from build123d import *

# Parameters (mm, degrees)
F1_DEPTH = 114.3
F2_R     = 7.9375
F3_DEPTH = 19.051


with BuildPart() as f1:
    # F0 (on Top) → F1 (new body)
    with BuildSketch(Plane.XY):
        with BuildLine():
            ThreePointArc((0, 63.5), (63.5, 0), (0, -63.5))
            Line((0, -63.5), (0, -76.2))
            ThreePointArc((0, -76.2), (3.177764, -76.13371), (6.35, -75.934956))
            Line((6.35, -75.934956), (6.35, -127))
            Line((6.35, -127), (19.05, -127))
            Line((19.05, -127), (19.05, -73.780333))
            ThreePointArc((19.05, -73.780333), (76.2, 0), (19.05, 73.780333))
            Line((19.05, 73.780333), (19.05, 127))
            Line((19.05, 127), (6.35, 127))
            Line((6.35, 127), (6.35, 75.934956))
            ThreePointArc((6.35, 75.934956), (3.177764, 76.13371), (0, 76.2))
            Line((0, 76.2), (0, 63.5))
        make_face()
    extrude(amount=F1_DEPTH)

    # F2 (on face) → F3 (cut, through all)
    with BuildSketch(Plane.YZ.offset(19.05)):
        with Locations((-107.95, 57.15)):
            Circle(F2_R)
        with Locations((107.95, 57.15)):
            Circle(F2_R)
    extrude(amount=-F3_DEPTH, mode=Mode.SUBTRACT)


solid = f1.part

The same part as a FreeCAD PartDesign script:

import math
import FreeCAD as App
import Part
import Sketcher
from FreeCAD import Vector
Q = App.Units.Quantity

doc = App.newDocument("Part")
body = doc.addObject("PartDesign::Body", "Body")

sketch1 = body.newObject("Sketcher::SketchObject", "Sketch")
sketch1.AttachmentSupport = (doc.getObject("XY_Plane"), [""])
sketch1.MapMode = "FlatFace"
sketch1.addGeometry(Part.ArcOfCircle(Part.Circle(Vector(0, 0, 0), Vector(0, 0, 1), 64), math.radians(-90), math.radians(90)), False)
sketch1.addGeometry(Part.LineSegment(Vector(0, -64, 0), Vector(0, -76, 0)), False)
sketch1.addGeometry(Part.ArcOfCircle(Part.Circle(Vector(0, 0, 0), Vector(0, 0, 1), 76), math.radians(-90), math.radians(-85.22)), False)
sketch1.addGeometry(Part.LineSegment(Vector(6, -76, 0), Vector(6, -127, 0)), False)
sketch1.addGeometry(Part.LineSegment(Vector(6, -127, 0), Vector(19, -127, 0)), False)
sketch1.addGeometry(Part.LineSegment(Vector(19, -127, 0), Vector(19, -74, 0)), False)
sketch1.addGeometry(Part.ArcOfCircle(Part.Circle(Vector(0, 0, 0), Vector(0, 0, 1), 76), math.radians(-76), math.radians(76)), False)
sketch1.addGeometry(Part.LineSegment(Vector(19, 74, 0), Vector(19, 127, 0)), False)
sketch1.addGeometry(Part.LineSegment(Vector(19, 127, 0), Vector(6, 127, 0)), False)
sketch1.addGeometry(Part.LineSegment(Vector(6, 127, 0), Vector(6, 76, 0)), False)
sketch1.addGeometry(Part.ArcOfCircle(Part.Circle(Vector(0, 0, 0), Vector(0, 0, 1), 76), math.radians(85.22), math.radians(90)), False)
sketch1.addGeometry(Part.LineSegment(Vector(0, 76, 0), Vector(0, 64, 0)), False)
sketch1.addConstraint(Sketcher.Constraint("Coincident", 0, 1, 1, 1))
sketch1.addConstraint(Sketcher.Constraint("Coincident", 1, 2, 2, 1))
sketch1.addConstraint(Sketcher.Constraint("Coincident", 2, 2, 3, 1))
sketch1.addConstraint(Sketcher.Constraint("Coincident", 3, 2, 4, 1))
sketch1.addConstraint(Sketcher.Constraint("Coincident", 4, 2, 5, 1))
sketch1.addConstraint(Sketcher.Constraint("Coincident", 5, 2, 6, 1))
sketch1.addConstraint(Sketcher.Constraint("Coincident", 6, 2, 7, 1))
sketch1.addConstraint(Sketcher.Constraint("Coincident", 7, 2, 8, 1))
sketch1.addConstraint(Sketcher.Constraint("Coincident", 8, 2, 9, 1))
sketch1.addConstraint(Sketcher.Constraint("Coincident", 9, 2, 10, 1))
sketch1.addConstraint(Sketcher.Constraint("Coincident", 10, 2, 11, 1))
sketch1.addConstraint(Sketcher.Constraint("Coincident", 11, 2, 0, 2))
sketch1.addConstraint(Sketcher.Constraint("Vertical", 1))
sketch1.addConstraint(Sketcher.Constraint("Vertical", 3))
sketch1.addConstraint(Sketcher.Constraint("Horizontal", 4))
sketch1.addConstraint(Sketcher.Constraint("Vertical", 5))
sketch1.addConstraint(Sketcher.Constraint("Vertical", 7))
sketch1.addConstraint(Sketcher.Constraint("Horizontal", 8))
sketch1.addConstraint(Sketcher.Constraint("Vertical", 9))
sketch1.addConstraint(Sketcher.Constraint("Vertical", 11))
sketch1.addConstraint(Sketcher.Constraint("Coincident", 0, 3, -1, 1))
sketch1.addConstraint(Sketcher.Constraint("Coincident", 6, 3, -1, 1))
sketch1.addConstraint(Sketcher.Constraint("Equal", 2, 10))
sketch1.addConstraint(Sketcher.Constraint("Symmetric", 1, 2, 10, 2, -1, 1))
sketch1.addConstraint(Sketcher.Constraint("Symmetric", 4, 2, 7, 2, -1))
sketch1.addConstraint(Sketcher.Constraint("Symmetric", 2, 2, 9, 2, -1))
sketch1.addConstraint(Sketcher.Constraint("PointOnObject", 0, 1, -2))
sketch1.addConstraint(Sketcher.Constraint("Equal", 8, 1))
sketch1.addConstraint(Sketcher.Constraint("Radius", 6, Q("3 in")))
sketch1.addConstraint(Sketcher.Constraint("Radius", 0, Q("2.5 in")))
sketch1.addConstraint(Sketcher.Constraint("DistanceX", 4, 1, 4, 2, Q("0.5 in")))
sketch1.addConstraint(Sketcher.Constraint("DistanceY", 3, 2, -1, 1, Q("5 in")))
sketch1.addConstraint(Sketcher.Constraint("DistanceX", -1, 1, 2, 2, Q("0.25 in")))
sketch1.addConstraint(Sketcher.Constraint("Radius", 2, 76.200294))
sketch1.addConstraint(Sketcher.Constraint("DistanceY", 3, 2, 3, 1, 51.065044))
pad1 = body.newObject("PartDesign::Pad", "Pad")
pad1.Profile = sketch1
pad1.Length = Q("4.5 in")

sketch2 = body.newObject("Sketcher::SketchObject", "Sketch001")
sketch2.AttachmentSupport = (doc.getObject("YZ_Plane"), [""])
sketch2.MapMode = "FlatFace"
sketch2.AttachmentOffset = App.Placement(Vector(0, 0, 0.75 * 25.4), App.Rotation())
sketch2.addGeometry(Part.Circle(Vector(-108, 57, 0), Vector(0, 0, 1), 8), False)
sketch2.addGeometry(Part.Circle(Vector(108, 57, 0), Vector(0, 0, 1), 8), False)
sketch2.addConstraint(Sketcher.Constraint("Equal", 0, 1))
sketch2.addConstraint(Sketcher.Constraint("Symmetric", 0, 3, 1, 3, -2))
sketch2.addConstraint(Sketcher.Constraint("Diameter", 0, Q("0.625 in")))
sketch2.addConstraint(Sketcher.Constraint("DistanceX", 0, 3, 1, 3, Q("8.5 in")))
sketch2.addConstraint(Sketcher.Constraint("DistanceY", -1, 1, 0, 3, Q("2.25 in")))
pocket1 = body.newObject("PartDesign::Pocket", "Pocket")
pocket1.Profile = sketch2
pocket1.Type = "ThroughAll"

doc.recompute()
